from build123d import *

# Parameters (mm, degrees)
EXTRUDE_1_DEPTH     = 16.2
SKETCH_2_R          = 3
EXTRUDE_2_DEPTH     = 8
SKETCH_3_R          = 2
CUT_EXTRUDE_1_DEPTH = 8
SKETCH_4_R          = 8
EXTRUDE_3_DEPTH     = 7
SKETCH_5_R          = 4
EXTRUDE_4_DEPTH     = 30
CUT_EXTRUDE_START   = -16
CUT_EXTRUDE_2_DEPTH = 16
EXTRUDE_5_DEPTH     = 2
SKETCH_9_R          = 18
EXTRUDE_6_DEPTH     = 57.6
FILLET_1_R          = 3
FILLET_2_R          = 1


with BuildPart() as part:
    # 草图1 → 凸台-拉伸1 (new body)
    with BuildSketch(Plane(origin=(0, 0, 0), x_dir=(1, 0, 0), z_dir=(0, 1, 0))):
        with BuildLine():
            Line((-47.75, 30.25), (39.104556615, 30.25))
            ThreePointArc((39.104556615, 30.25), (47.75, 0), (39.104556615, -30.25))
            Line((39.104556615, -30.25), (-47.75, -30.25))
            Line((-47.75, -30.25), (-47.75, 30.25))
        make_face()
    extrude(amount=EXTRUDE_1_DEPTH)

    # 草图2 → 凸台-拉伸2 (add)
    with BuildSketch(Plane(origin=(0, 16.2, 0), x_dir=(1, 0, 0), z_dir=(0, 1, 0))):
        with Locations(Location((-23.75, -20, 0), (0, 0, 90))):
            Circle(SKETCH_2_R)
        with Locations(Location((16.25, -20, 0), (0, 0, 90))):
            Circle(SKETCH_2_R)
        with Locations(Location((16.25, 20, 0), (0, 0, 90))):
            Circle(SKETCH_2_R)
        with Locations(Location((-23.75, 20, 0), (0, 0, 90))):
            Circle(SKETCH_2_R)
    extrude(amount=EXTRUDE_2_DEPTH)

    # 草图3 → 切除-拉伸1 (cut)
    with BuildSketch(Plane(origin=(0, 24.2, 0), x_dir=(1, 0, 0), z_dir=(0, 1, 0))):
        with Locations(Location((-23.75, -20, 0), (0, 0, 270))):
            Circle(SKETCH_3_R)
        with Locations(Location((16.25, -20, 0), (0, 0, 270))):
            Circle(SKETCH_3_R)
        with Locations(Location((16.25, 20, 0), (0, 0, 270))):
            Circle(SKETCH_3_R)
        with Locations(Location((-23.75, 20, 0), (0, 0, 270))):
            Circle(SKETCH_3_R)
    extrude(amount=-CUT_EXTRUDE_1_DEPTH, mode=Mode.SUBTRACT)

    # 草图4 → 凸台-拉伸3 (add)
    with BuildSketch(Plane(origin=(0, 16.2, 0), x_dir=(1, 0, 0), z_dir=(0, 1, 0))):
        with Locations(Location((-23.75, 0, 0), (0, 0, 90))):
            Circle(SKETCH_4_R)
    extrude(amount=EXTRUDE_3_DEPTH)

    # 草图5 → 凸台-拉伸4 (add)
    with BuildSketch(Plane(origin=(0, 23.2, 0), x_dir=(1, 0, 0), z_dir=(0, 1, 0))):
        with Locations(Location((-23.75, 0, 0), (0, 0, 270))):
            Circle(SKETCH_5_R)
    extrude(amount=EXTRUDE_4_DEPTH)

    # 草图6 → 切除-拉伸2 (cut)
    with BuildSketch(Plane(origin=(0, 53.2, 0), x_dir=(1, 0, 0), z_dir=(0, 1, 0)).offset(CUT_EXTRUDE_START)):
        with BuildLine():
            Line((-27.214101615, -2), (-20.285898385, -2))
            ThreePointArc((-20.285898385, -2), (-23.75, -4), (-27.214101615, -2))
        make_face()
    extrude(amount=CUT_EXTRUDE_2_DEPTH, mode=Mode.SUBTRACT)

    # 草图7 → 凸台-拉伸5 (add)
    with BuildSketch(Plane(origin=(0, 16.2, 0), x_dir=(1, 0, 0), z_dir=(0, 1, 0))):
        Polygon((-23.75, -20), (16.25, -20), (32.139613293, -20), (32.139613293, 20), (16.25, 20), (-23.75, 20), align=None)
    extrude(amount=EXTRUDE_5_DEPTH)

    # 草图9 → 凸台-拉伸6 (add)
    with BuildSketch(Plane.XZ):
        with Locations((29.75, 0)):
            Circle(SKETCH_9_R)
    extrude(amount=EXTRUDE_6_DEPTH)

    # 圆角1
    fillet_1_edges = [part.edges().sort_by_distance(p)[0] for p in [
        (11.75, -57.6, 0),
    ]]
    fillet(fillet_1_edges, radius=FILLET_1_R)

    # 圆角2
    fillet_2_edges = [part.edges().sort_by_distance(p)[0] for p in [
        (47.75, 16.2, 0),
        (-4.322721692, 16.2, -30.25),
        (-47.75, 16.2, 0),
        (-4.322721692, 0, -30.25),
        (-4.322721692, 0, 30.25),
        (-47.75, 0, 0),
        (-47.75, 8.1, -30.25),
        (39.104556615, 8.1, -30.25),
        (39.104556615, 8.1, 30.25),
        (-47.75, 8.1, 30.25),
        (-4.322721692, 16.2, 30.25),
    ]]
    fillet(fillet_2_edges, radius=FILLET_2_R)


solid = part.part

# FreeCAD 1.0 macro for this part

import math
import FreeCAD as App
import Part
import Sketcher
from FreeCAD import Vector
Q = App.Units.Quantity


def edges_at(feature, points):
    """Names of the edges that pass closest to the given points."""
    edges = feature.Shape.Edges
    near = lambda p: min(range(len(edges)), key=lambda i: edges[i].distToShape(Part.Vertex(*p))[0])
    return sorted({f"Edge{near(p) + 1}" for p in points})


def add_polygon(sketch, points):
    """Adds a closed chain of lines whose ends are joined by coincident constraints."""
    first, n = sketch.GeometryCount, len(points)
    for a, b in zip(points, points[1:] + points[:1]):
        sketch.addGeometry(Part.LineSegment(App.Vector(*a, 0), App.Vector(*b, 0)), False)
    for i in range(n):
        sketch.addConstraint(Sketcher.Constraint("Coincident", first + i, 2, first + (i + 1) % n, 1))

doc = App.newDocument("Part")
body = doc.addObject("PartDesign::Body", "Body")

sketch1 = body.newObject("Sketcher::SketchObject", "Sketch")
sketch1.AttachmentSupport = (doc.getObject("XZ_Plane"), [""])
sketch1.MapMode = "FlatFace"
sketch1.addGeometry(Part.LineSegment(Vector(39, -30, 0), Vector(-48, -30, 0)), False)
sketch1.addGeometry(Part.LineSegment(Vector(-48, -30, 0), Vector(-48, 30, 0)), False)
sketch1.addGeometry(Part.LineSegment(Vector(-48, 30, 0), Vector(39, 30, 0)), False)
sketch1.addGeometry(Part.ArcOfCircle(Part.Circle(Vector(-9, 0, 0), Vector(0, 0, 1), 57), math.radians(-32), math.radians(32)), False)
sketch1.addConstraint(Sketcher.Constraint("Coincident", 0, 2, 1, 1))
sketch1.addConstraint(Sketcher.Constraint("Coincident", 1, 2, 2, 1))
sketch1.addConstraint(Sketcher.Constraint("Coincident", 2, 2, 3, 2))
sketch1.addConstraint(Sketcher.Constraint("Coincident", 3, 1, 0, 1))
sketch1.addConstraint(Sketcher.Constraint("Horizontal", 0))
sketch1.addConstraint(Sketcher.Constraint("Vertical", 1))
sketch1.addConstraint(Sketcher.Constraint("Horizontal", 2))
sketch1.addConstraint(Sketcher.Constraint("Symmetric", 2, 2, 3, 1, -1))
sketch1.addConstraint(Sketcher.Constraint("DistanceY", 1, 1, 1, 2, Q("60.5 mm")))
sketch1.addConstraint(Sketcher.Constraint("DistanceX", 0, 2, -1, 1, Q("47.75 mm")))
sketch1.addConstraint(Sketcher.Constraint("Radius", 3, Q("57.244386 mm")))
sketch1.addConstraint(Sketcher.Constraint("DistanceX", 0, 2, 0, 1, Q("86.854557 mm")))
pad1 = body.newObject("PartDesign::Pad", "Pad")
pad1.Profile = sketch1
pad1.Length = 16.2
pad1.Reversed = True

sketch2 = body.newObject("Sketcher::SketchObject", "Sketch001")
sketch2.AttachmentSupport = (doc.getObject("XZ_Plane"), [""])
sketch2.MapMode = "FlatFace"
sketch2.AttachmentOffset = App.Placement(Vector(0, 0, -16.2), App.Rotation())
sketch2.addGeometry(Part.Circle(Vector(-23.8, 20, 0), Vector(0, 0, 1), 3), False)
sketch2.addGeometry(Part.Circle(Vector(16.2, 20, 0), Vector(0, 0, 1), 3), False)
sketch2.addGeometry(Part.Circle(Vector(16.2, -20, 0), Vector(0, 0, 1), 3), False)
sketch2.addGeometry(Part.Circle(Vector(-23.8, -20, 0), Vector(0, 0, 1), 3), False)
sketch2.addConstraint(Sketcher.Constraint("Equal", 0, 1))
sketch2.addConstraint(Sketcher.Constraint("Equal", 1, 2))
sketch2.addConstraint(Sketcher.Constraint("Equal", 2, 3))
sketch2.addConstraint(Sketcher.Constraint("Symmetric", 1, 3, 2, 3, -1))
sketch2.addConstraint(Sketcher.Constraint("Symmetric", 0, 3, 3, 3, -1))
sketch2.addConstraint(Sketcher.Constraint("Horizontal", 0, 3, 1, 3))
sketch2.addConstraint(Sketcher.Constraint("Diameter", 0, Q("6 mm")))
sketch2.addConstraint(Sketcher.Constraint("DistanceY", -1, 1, 0, 3, Q("20 mm")))
sketch2.addConstraint(Sketcher.Constraint("DistanceX", 0, 3, 1, 3, Q("40 mm")))
sketch2.addConstraint(Sketcher.Constraint("DistanceX", 0, 3, -1, 1, Q("23.75 mm")))
pad2 = body.newObject("PartDesign::Pad", "Pad001")
pad2.Profile = sketch2
pad2.Length = 8
pad2.Reversed = True

sketch3 = body.newObject("Sketcher::SketchObject", "Sketch002")
sketch3.AttachmentSupport = (doc.getObject("XZ_Plane"), [""])
sketch3.MapMode = "FlatFace"
sketch3.AttachmentOffset = App.Placement(Vector(0, 0, -24.2), App.Rotation())
sketch3.addGeometry(Part.Circle(Vector(-23.8, 20, 0), Vector(0, 0, 1), 2), False)
sketch3.addGeometry(Part.Circle(Vector(16.2, 20, 0), Vector(0, 0, 1), 2), False)
sketch3.addGeometry(Part.Circle(Vector(16.2, -20, 0), Vector(0, 0, 1), 2), False)
sketch3.addGeometry(Part.Circle(Vector(-23.8, -20, 0), Vector(0, 0, 1), 2), False)
sketch3.addConstraint(Sketcher.Constraint("Equal", 0, 1))
sketch3.addConstraint(Sketcher.Constraint("Equal", 1, 2))
sketch3.addConstraint(Sketcher.Constraint("Equal", 2, 3))
sketch3.addConstraint(Sketcher.Constraint("Symmetric", 1, 3, 2, 3, -1))
sketch3.addConstraint(Sketcher.Constraint("Symmetric", 0, 3, 3, 3, -1))
sketch3.addConstraint(Sketcher.Constraint("Horizontal", 0, 3, 1, 3))
sketch3.addConstraint(Sketcher.Constraint("Diameter", 0, Q("4 mm")))
sketch3.addConstraint(Sketcher.Constraint("DistanceY", -1, 1, 0, 3, Q("20 mm")))
sketch3.addConstraint(Sketcher.Constraint("DistanceX", 0, 3, 1, 3, Q("40 mm")))
sketch3.addConstraint(Sketcher.Constraint("DistanceX", 0, 3, -1, 1, Q("23.75 mm")))
pocket1 = body.newObject("PartDesign::Pocket", "Pocket")
pocket1.Profile = sketch3
pocket1.Length = 8
pocket1.Reversed = True

sketch4 = body.newObject("Sketcher::SketchObject", "Sketch003")
sketch4.AttachmentSupport = (doc.getObject("XZ_Plane"), [""])
sketch4.MapMode = "FlatFace"
sketch4.AttachmentOffset = App.Placement(Vector(0, 0, -16.2), App.Rotation())
sketch4.addGeometry(Part.Circle(Vector(-24, 0, 0), Vector(0, 0, 1), 8), False)
sketch4.addConstraint(Sketcher.Constraint("PointOnObject", 0, 3, -1))
sketch4.addConstraint(Sketcher.Constraint("Diameter", 0, Q("16 mm")))
sketch4.addConstraint(Sketcher.Constraint("DistanceX", 0, 3, -1, 1, Q("23.75 mm")))
pad3 = body.newObject("PartDesign::Pad", "Pad002")
pad3.Profile = sketch4
pad3.Length = 7
pad3.Reversed = True

sketch5 = body.newObject("Sketcher::SketchObject", "Sketch004")
sketch5.AttachmentSupport = (doc.getObject("XZ_Plane"), [""])
sketch5.MapMode = "FlatFace"
sketch5.AttachmentOffset = App.Placement(Vector(0, 0, -23.2), App.Rotation())
sketch5.addGeometry(Part.Circle(Vector(-23.8, 0, 0), Vector(0, 0, 1), 4), False)
sketch5.addConstraint(Sketcher.Constraint("PointOnObject", 0, 3, -1))
sketch5.addConstraint(Sketcher.Constraint("Diameter", 0, Q("8 mm")))
sketch5.addConstraint(Sketcher.Constraint("DistanceX", 0, 3, -1, 1, Q("23.75 mm")))
pad4 = body.newObject("PartDesign::Pad", "Pad003")
pad4.Profile = sketch5
pad4.Length = 30
pad4.Reversed = True

sketch6 = body.newObject("Sketcher::SketchObject", "Sketch005")
sketch6.AttachmentSupport = (doc.getObject("XZ_Plane"), [""])
sketch6.MapMode = "FlatFace"
sketch6.AttachmentOffset = App.Placement(Vector(0, 0, -37.2), App.Rotation())
sketch6.addGeometry(Part.LineSegment(Vector(-20.3, 2, 0), Vector(-27.2, 2, 0)), False)
sketch6.addGeometry(Part.ArcOfCircle(Part.Circle(Vector(-23.8, 0, 0), Vector(0, 0, 1), 4), math.radians(30), math.radians(150)), False)
sketch6.addConstraint(Sketcher.Constraint("Coincident", 0, 1, 1, 1))
sketch6.addConstraint(Sketcher.Constraint("Coincident", 1, 2, 0, 2))
sketch6.addConstraint(Sketcher.Constraint("Horizontal", 0))
sketch6.addConstraint(Sketcher.Constraint("PointOnObject", 1, 3, -1))
sketch6.addConstraint(Sketcher.Constraint("Radius", 1, Q("4 mm")))
sketch6.addConstraint(Sketcher.Constraint("DistanceY", -1, 1, 0, 1, Q("2 mm")))
sketch6.addConstraint(Sketcher.Constraint("DistanceX", 1, 3, -1, 1, Q("23.75 mm")))
pocket2 = body.newObject("PartDesign::Pocket", "Pocket001")
pocket2.Profile = sketch6
pocket2.Length = 16

sketch7 = body.newObject("Sketcher::SketchObject", "Sketch006")
sketch7.AttachmentSupport = (doc.getObject("XZ_Plane"), [""])
sketch7.MapMode = "FlatFace"
sketch7.AttachmentOffset = App.Placement(Vector(0, 0, -16.2), App.Rotation())
add_polygon(sketch7, [(-24, 20), (32, 20), (32, -20), (-24, -20)])
sketch7.addConstraint(Sketcher.Constraint("Horizontal", 0))
sketch7.addConstraint(Sketcher.Constraint("Vertical", 1))
sketch7.addConstraint(Sketcher.Constraint("Horizontal", 2))
sketch7.addConstraint(Sketcher.Constraint("Vertical", 3))
sketch7.addConstraint(Sketcher.Constraint("DistanceY", 1, 2, 1, 1, Q("40 mm")))
sketch7.addConstraint(Sketcher.Constraint("DistanceY", -1, 1, 0, 2, Q("20 mm")))
sketch7.addConstraint(Sketcher.Constraint("DistanceX", 2, 2, -1, 1, Q("23.75 mm")))
sketch7.addConstraint(Sketcher.Constraint("DistanceX", 0, 1, 0, 2, Q("55.889613 mm")))
pad5 = body.newObject("PartDesign::Pad", "Pad004")
pad5.Profile = sketch7
pad5.Length = 2
pad5.Reversed = True

sketch8 = body.newObject("Sketcher::SketchObject", "Sketch007")
sketch8.AttachmentSupport = (doc.getObject("XZ_Plane"), [""])
sketch8.MapMode = "FlatFace"
sketch8.addGeometry(Part.Circle(Vector(30, 0, 0), Vector(0, 0, 1), 18), False)
sketch8.addConstraint(Sketcher.Constraint("PointOnObject", 0, 3, -1))
sketch8.addConstraint(Sketcher.Constraint("Diameter", 0, Q("36 mm")))
sketch8.addConstraint(Sketcher.Constraint("DistanceX", -1, 1, 0, 3, Q("29.75 mm")))
pad6 = body.newObject("PartDesign::Pad", "Pad005")
pad6.Profile = sketch8
pad6.Length = 57.6
doc.recompute()

fillet = body.newObject("PartDesign::Fillet", "Fillet")
fillet.Base = (pad6, edges_at(pad6, [(11.75, -57.6, 0)]))
fillet.Radius = 3
doc.recompute()

fillet2 = body.newObject("PartDesign::Fillet", "Fillet001")
fillet2.Base = (fillet, edges_at(fillet, [
    (47.75, 16.2, 0),
    (-4.323, 16.2, -30.25),
    (-47.75, 16.2, 0),
    (-4.323, 0, -30.25),
    (-4.323, 0, 30.25),
    (-47.75, 0, 0),
    (-47.75, 8.1, -30.25),
    (39.105, 8.1, -30.25),
    (39.105, 8.1, 30.25),
    (-47.75, 8.1, 30.25),
    (-4.323, 16.2, 30.25),
]))
fillet2.Radius = 1

doc.recompute()
